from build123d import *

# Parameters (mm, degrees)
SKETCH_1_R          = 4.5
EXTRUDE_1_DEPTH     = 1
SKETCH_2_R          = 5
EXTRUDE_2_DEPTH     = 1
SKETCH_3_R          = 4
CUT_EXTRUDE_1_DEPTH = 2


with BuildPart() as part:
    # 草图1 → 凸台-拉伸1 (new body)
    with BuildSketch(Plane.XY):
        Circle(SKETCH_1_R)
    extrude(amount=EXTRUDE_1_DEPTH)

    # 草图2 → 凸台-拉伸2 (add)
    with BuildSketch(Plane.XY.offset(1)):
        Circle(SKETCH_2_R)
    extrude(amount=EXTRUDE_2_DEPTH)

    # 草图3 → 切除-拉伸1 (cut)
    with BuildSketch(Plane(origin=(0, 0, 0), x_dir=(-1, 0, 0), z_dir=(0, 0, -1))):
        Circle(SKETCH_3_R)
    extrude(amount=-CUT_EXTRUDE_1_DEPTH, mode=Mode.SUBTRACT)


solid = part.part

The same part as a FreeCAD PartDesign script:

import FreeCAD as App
import Part
import Sketcher
Q = App.Units.Quantity

doc = App.newDocument("Part")
body = doc.addObject("PartDesign::Body", "Body")

# Sketch on XY plane
sketch1 = body.newObject("Sketcher::SketchObject", "Sketch")
sketch1.AttachmentSupport = (doc.getObject("XY_Plane"), [""])
sketch1.MapMode = "FlatFace"
sketch1.addGeometry(Part.Circle(App.Vector(0, 0, 0), App.Vector(0, 0, 1), 4.5), False)
sketch1.addConstraint(Sketcher.Constraint("Coincident", 0, 3, -1, 1))
sketch1.addConstraint(Sketcher.Constraint("Diameter", 0, Q("9 mm")))
pad1 = body.newObject("PartDesign::Pad", "Pad")
pad1.Profile = sketch1
pad1.Length = 1

# Sketch on XY plane
sketch2 = body.newObject("Sketcher::SketchObject", "Sketch001")
sketch2.AttachmentSupport = (doc.getObject("XY_Plane"), [""])
sketch2.MapMode = "FlatFace"
sketch2.AttachmentOffset = App.Placement(App.Vector(0, 0, 1), App.Rotation())
sketch2.addGeometry(Part.Circle(App.Vector(0, 0, 0), App.Vector(0, 0, 1), 5), False)
sketch2.addConstraint(Sketcher.Constraint("Coincident", 0, 3, -1, 1))
sketch2.addConstraint(Sketcher.Constraint("Diameter", 0, Q("10 mm")))
pad2 = body.newObject("PartDesign::Pad", "Pad001")
pad2.Profile = sketch2
pad2.Length = 1

# Sketch on XY plane
sketch3 = body.newObject("Sketcher::SketchObject", "Sketch002")
sketch3.AttachmentSupport = (doc.getObject("XY_Plane"), [""])
sketch3.MapMode = "FlatFace"
sketch3.addGeometry(Part.Circle(App.Vector(0, 0, 0), App.Vector(0, 0, 1), 4), False)
sketch3.addConstraint(Sketcher.Constraint("Coincident", 0, 3, -1, 1))
sketch3.addConstraint(Sketcher.Constraint("Diameter", 0, Q("8 mm")))
pocket1 = body.newObject("PartDesign::Pocket", "Pocket")
pocket1.Profile = sketch3
pocket1.Length = 2
pocket1.Reversed = True

doc.recompute()
